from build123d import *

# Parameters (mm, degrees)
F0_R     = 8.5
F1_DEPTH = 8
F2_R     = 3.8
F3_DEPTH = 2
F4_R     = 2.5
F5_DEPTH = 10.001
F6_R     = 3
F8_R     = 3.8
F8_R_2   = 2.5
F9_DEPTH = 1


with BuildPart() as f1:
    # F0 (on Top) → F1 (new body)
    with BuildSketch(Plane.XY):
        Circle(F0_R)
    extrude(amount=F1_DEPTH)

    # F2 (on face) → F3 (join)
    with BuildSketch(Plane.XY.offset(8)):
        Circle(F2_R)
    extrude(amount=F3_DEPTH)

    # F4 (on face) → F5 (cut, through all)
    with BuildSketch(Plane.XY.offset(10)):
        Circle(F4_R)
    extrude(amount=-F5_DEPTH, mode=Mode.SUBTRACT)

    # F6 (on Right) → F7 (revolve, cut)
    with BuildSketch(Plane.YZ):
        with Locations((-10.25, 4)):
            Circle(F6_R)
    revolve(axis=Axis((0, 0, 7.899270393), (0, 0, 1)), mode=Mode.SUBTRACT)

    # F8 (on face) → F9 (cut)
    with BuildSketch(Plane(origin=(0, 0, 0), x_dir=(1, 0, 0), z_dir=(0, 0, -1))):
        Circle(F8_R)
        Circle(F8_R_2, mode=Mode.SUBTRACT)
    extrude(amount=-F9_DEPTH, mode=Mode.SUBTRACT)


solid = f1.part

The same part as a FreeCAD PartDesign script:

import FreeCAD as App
import Part
import Sketcher
from FreeCAD import Vector
Q = App.Units.Quantity

doc = App.newDocument("Part")
body = doc.addObject("PartDesign::Body", "Body")

sketch1 = doc.addObject("Sketcher::SketchObject", "Sketch")
body.addObject(sketch1)
sketch1.AttachmentSupport = (doc.XY_Plane, [""])
sketch1.MapMode = "FlatFace"
sketch1.addGeometry(Part.Circle(Vector(0, 0, 0), Vector(0, 0, 1), 8), False)
sketch1.addConstraint([
    Sketcher.Constraint("Coincident", 0, 3, -1, 1),
    Sketcher.Constraint("Diameter", 0, Q("17 mm")),
])
pad1 = doc.addObject("PartDesign::Pad", "Pad")
body.addObject(pad1)
pad1.Profile = sketch1
pad1.Length = 8

sketch2 = doc.addObject("Sketcher::SketchObject", "Sketch001")
body.addObject(sketch2)
sketch2.AttachmentSupport = (doc.XY_Plane, [""])
sketch2.MapMode = "FlatFace"
sketch2.AttachmentOffset = App.Placement(Vector(0, 0, 8), App.Rotation())
sketch2.addGeometry(Part.Circle(Vector(0, 0, 0), Vector(0, 0, 1), 3.8), False)
sketch2.addConstraint([
    Sketcher.Constraint("Coincident", 0, 3, -1, 1),
    Sketcher.Constraint("Diameter", 0, Q("7.6 mm")),
])
pad2 = doc.addObject("PartDesign::Pad", "Pad001")
body.addObject(pad2)
pad2.Profile = sketch2
pad2.Length = 2

sketch3 = doc.addObject("Sketcher::SketchObject", "Sketch002")
body.addObject(sketch3)
sketch3.AttachmentSupport = (doc.XY_Plane, [""])
sketch3.MapMode = "FlatFace"
sketch3.AttachmentOffset = App.Placement(Vector(0, 0, 10), App.Rotation())
sketch3.addGeometry(Part.Circle(Vector(0, 0, 0), Vector(0, 0, 1), 2.5), False)
sketch3.addConstraint([
    Sketcher.Constraint("Coincident", 0, 3, -1, 1),
    Sketcher.Constraint("Diameter", 0, Q("5 mm")),
])
pocket1 = doc.addObject("PartDesign::Pocket", "Pocket")
body.addObject(pocket1)
pocket1.Profile = sketch3
pocket1.Type = "ThroughAll"

sketch4 = doc.addObject("Sketcher::SketchObject", "Sketch003")
body.addObject(sketch4)
sketch4.AttachmentSupport = (doc.YZ_Plane, [""])
sketch4.MapMode = "FlatFace"
sketch4.addGeometry(Part.Circle(Vector(-10.2, 4, 0), Vector(0, 0, 1), 3), False)
sketch4.addConstraint([
    Sketcher.Constraint("Diameter", 0, Q("6 mm")),
    Sketcher.Constraint("DistanceY", -1, 1, 0, 3, Q("4 mm")),
    Sketcher.Constraint("DistanceX", 0, 3, -1, 1, Q("10.25 mm")),
])
groove = doc.addObject("PartDesign::Groove", "Groove")
body.addObject(groove)
groove.Profile = sketch4
groove.ReferenceAxis = (sketch4, ["V_Axis"])
groove.Angle = 360

sketch5 = doc.addObject("Sketcher::SketchObject", "Sketch004")
body.addObject(sketch5)
sketch5.AttachmentSupport = (doc.XY_Plane, [""])
sketch5.MapMode = "FlatFace"
sketch5.addGeometry([
    Part.Circle(Vector(0, 0, 0), Vector(0, 0, 1), 3.8),
    Part.Circle(Vector(0, 0, 0), Vector(0, 0, 1), 2.5),
], False)
sketch5.addConstraint([
    Sketcher.Constraint("Coincident", 0, 3, -1, 1),
    Sketcher.Constraint("Coincident", 1, 3, -1, 1),
    Sketcher.Constraint("Diameter", 1, Q("5 mm")),
    Sketcher.Constraint("Diameter", 0, Q("7.6 mm")),
])
pocket2 = doc.addObject("PartDesign::Pocket", "Pocket001")
body.addObject(pocket2)
pocket2.Profile = sketch5
pocket2.Length = 1
pocket2.Reversed = True

doc.recompute()
